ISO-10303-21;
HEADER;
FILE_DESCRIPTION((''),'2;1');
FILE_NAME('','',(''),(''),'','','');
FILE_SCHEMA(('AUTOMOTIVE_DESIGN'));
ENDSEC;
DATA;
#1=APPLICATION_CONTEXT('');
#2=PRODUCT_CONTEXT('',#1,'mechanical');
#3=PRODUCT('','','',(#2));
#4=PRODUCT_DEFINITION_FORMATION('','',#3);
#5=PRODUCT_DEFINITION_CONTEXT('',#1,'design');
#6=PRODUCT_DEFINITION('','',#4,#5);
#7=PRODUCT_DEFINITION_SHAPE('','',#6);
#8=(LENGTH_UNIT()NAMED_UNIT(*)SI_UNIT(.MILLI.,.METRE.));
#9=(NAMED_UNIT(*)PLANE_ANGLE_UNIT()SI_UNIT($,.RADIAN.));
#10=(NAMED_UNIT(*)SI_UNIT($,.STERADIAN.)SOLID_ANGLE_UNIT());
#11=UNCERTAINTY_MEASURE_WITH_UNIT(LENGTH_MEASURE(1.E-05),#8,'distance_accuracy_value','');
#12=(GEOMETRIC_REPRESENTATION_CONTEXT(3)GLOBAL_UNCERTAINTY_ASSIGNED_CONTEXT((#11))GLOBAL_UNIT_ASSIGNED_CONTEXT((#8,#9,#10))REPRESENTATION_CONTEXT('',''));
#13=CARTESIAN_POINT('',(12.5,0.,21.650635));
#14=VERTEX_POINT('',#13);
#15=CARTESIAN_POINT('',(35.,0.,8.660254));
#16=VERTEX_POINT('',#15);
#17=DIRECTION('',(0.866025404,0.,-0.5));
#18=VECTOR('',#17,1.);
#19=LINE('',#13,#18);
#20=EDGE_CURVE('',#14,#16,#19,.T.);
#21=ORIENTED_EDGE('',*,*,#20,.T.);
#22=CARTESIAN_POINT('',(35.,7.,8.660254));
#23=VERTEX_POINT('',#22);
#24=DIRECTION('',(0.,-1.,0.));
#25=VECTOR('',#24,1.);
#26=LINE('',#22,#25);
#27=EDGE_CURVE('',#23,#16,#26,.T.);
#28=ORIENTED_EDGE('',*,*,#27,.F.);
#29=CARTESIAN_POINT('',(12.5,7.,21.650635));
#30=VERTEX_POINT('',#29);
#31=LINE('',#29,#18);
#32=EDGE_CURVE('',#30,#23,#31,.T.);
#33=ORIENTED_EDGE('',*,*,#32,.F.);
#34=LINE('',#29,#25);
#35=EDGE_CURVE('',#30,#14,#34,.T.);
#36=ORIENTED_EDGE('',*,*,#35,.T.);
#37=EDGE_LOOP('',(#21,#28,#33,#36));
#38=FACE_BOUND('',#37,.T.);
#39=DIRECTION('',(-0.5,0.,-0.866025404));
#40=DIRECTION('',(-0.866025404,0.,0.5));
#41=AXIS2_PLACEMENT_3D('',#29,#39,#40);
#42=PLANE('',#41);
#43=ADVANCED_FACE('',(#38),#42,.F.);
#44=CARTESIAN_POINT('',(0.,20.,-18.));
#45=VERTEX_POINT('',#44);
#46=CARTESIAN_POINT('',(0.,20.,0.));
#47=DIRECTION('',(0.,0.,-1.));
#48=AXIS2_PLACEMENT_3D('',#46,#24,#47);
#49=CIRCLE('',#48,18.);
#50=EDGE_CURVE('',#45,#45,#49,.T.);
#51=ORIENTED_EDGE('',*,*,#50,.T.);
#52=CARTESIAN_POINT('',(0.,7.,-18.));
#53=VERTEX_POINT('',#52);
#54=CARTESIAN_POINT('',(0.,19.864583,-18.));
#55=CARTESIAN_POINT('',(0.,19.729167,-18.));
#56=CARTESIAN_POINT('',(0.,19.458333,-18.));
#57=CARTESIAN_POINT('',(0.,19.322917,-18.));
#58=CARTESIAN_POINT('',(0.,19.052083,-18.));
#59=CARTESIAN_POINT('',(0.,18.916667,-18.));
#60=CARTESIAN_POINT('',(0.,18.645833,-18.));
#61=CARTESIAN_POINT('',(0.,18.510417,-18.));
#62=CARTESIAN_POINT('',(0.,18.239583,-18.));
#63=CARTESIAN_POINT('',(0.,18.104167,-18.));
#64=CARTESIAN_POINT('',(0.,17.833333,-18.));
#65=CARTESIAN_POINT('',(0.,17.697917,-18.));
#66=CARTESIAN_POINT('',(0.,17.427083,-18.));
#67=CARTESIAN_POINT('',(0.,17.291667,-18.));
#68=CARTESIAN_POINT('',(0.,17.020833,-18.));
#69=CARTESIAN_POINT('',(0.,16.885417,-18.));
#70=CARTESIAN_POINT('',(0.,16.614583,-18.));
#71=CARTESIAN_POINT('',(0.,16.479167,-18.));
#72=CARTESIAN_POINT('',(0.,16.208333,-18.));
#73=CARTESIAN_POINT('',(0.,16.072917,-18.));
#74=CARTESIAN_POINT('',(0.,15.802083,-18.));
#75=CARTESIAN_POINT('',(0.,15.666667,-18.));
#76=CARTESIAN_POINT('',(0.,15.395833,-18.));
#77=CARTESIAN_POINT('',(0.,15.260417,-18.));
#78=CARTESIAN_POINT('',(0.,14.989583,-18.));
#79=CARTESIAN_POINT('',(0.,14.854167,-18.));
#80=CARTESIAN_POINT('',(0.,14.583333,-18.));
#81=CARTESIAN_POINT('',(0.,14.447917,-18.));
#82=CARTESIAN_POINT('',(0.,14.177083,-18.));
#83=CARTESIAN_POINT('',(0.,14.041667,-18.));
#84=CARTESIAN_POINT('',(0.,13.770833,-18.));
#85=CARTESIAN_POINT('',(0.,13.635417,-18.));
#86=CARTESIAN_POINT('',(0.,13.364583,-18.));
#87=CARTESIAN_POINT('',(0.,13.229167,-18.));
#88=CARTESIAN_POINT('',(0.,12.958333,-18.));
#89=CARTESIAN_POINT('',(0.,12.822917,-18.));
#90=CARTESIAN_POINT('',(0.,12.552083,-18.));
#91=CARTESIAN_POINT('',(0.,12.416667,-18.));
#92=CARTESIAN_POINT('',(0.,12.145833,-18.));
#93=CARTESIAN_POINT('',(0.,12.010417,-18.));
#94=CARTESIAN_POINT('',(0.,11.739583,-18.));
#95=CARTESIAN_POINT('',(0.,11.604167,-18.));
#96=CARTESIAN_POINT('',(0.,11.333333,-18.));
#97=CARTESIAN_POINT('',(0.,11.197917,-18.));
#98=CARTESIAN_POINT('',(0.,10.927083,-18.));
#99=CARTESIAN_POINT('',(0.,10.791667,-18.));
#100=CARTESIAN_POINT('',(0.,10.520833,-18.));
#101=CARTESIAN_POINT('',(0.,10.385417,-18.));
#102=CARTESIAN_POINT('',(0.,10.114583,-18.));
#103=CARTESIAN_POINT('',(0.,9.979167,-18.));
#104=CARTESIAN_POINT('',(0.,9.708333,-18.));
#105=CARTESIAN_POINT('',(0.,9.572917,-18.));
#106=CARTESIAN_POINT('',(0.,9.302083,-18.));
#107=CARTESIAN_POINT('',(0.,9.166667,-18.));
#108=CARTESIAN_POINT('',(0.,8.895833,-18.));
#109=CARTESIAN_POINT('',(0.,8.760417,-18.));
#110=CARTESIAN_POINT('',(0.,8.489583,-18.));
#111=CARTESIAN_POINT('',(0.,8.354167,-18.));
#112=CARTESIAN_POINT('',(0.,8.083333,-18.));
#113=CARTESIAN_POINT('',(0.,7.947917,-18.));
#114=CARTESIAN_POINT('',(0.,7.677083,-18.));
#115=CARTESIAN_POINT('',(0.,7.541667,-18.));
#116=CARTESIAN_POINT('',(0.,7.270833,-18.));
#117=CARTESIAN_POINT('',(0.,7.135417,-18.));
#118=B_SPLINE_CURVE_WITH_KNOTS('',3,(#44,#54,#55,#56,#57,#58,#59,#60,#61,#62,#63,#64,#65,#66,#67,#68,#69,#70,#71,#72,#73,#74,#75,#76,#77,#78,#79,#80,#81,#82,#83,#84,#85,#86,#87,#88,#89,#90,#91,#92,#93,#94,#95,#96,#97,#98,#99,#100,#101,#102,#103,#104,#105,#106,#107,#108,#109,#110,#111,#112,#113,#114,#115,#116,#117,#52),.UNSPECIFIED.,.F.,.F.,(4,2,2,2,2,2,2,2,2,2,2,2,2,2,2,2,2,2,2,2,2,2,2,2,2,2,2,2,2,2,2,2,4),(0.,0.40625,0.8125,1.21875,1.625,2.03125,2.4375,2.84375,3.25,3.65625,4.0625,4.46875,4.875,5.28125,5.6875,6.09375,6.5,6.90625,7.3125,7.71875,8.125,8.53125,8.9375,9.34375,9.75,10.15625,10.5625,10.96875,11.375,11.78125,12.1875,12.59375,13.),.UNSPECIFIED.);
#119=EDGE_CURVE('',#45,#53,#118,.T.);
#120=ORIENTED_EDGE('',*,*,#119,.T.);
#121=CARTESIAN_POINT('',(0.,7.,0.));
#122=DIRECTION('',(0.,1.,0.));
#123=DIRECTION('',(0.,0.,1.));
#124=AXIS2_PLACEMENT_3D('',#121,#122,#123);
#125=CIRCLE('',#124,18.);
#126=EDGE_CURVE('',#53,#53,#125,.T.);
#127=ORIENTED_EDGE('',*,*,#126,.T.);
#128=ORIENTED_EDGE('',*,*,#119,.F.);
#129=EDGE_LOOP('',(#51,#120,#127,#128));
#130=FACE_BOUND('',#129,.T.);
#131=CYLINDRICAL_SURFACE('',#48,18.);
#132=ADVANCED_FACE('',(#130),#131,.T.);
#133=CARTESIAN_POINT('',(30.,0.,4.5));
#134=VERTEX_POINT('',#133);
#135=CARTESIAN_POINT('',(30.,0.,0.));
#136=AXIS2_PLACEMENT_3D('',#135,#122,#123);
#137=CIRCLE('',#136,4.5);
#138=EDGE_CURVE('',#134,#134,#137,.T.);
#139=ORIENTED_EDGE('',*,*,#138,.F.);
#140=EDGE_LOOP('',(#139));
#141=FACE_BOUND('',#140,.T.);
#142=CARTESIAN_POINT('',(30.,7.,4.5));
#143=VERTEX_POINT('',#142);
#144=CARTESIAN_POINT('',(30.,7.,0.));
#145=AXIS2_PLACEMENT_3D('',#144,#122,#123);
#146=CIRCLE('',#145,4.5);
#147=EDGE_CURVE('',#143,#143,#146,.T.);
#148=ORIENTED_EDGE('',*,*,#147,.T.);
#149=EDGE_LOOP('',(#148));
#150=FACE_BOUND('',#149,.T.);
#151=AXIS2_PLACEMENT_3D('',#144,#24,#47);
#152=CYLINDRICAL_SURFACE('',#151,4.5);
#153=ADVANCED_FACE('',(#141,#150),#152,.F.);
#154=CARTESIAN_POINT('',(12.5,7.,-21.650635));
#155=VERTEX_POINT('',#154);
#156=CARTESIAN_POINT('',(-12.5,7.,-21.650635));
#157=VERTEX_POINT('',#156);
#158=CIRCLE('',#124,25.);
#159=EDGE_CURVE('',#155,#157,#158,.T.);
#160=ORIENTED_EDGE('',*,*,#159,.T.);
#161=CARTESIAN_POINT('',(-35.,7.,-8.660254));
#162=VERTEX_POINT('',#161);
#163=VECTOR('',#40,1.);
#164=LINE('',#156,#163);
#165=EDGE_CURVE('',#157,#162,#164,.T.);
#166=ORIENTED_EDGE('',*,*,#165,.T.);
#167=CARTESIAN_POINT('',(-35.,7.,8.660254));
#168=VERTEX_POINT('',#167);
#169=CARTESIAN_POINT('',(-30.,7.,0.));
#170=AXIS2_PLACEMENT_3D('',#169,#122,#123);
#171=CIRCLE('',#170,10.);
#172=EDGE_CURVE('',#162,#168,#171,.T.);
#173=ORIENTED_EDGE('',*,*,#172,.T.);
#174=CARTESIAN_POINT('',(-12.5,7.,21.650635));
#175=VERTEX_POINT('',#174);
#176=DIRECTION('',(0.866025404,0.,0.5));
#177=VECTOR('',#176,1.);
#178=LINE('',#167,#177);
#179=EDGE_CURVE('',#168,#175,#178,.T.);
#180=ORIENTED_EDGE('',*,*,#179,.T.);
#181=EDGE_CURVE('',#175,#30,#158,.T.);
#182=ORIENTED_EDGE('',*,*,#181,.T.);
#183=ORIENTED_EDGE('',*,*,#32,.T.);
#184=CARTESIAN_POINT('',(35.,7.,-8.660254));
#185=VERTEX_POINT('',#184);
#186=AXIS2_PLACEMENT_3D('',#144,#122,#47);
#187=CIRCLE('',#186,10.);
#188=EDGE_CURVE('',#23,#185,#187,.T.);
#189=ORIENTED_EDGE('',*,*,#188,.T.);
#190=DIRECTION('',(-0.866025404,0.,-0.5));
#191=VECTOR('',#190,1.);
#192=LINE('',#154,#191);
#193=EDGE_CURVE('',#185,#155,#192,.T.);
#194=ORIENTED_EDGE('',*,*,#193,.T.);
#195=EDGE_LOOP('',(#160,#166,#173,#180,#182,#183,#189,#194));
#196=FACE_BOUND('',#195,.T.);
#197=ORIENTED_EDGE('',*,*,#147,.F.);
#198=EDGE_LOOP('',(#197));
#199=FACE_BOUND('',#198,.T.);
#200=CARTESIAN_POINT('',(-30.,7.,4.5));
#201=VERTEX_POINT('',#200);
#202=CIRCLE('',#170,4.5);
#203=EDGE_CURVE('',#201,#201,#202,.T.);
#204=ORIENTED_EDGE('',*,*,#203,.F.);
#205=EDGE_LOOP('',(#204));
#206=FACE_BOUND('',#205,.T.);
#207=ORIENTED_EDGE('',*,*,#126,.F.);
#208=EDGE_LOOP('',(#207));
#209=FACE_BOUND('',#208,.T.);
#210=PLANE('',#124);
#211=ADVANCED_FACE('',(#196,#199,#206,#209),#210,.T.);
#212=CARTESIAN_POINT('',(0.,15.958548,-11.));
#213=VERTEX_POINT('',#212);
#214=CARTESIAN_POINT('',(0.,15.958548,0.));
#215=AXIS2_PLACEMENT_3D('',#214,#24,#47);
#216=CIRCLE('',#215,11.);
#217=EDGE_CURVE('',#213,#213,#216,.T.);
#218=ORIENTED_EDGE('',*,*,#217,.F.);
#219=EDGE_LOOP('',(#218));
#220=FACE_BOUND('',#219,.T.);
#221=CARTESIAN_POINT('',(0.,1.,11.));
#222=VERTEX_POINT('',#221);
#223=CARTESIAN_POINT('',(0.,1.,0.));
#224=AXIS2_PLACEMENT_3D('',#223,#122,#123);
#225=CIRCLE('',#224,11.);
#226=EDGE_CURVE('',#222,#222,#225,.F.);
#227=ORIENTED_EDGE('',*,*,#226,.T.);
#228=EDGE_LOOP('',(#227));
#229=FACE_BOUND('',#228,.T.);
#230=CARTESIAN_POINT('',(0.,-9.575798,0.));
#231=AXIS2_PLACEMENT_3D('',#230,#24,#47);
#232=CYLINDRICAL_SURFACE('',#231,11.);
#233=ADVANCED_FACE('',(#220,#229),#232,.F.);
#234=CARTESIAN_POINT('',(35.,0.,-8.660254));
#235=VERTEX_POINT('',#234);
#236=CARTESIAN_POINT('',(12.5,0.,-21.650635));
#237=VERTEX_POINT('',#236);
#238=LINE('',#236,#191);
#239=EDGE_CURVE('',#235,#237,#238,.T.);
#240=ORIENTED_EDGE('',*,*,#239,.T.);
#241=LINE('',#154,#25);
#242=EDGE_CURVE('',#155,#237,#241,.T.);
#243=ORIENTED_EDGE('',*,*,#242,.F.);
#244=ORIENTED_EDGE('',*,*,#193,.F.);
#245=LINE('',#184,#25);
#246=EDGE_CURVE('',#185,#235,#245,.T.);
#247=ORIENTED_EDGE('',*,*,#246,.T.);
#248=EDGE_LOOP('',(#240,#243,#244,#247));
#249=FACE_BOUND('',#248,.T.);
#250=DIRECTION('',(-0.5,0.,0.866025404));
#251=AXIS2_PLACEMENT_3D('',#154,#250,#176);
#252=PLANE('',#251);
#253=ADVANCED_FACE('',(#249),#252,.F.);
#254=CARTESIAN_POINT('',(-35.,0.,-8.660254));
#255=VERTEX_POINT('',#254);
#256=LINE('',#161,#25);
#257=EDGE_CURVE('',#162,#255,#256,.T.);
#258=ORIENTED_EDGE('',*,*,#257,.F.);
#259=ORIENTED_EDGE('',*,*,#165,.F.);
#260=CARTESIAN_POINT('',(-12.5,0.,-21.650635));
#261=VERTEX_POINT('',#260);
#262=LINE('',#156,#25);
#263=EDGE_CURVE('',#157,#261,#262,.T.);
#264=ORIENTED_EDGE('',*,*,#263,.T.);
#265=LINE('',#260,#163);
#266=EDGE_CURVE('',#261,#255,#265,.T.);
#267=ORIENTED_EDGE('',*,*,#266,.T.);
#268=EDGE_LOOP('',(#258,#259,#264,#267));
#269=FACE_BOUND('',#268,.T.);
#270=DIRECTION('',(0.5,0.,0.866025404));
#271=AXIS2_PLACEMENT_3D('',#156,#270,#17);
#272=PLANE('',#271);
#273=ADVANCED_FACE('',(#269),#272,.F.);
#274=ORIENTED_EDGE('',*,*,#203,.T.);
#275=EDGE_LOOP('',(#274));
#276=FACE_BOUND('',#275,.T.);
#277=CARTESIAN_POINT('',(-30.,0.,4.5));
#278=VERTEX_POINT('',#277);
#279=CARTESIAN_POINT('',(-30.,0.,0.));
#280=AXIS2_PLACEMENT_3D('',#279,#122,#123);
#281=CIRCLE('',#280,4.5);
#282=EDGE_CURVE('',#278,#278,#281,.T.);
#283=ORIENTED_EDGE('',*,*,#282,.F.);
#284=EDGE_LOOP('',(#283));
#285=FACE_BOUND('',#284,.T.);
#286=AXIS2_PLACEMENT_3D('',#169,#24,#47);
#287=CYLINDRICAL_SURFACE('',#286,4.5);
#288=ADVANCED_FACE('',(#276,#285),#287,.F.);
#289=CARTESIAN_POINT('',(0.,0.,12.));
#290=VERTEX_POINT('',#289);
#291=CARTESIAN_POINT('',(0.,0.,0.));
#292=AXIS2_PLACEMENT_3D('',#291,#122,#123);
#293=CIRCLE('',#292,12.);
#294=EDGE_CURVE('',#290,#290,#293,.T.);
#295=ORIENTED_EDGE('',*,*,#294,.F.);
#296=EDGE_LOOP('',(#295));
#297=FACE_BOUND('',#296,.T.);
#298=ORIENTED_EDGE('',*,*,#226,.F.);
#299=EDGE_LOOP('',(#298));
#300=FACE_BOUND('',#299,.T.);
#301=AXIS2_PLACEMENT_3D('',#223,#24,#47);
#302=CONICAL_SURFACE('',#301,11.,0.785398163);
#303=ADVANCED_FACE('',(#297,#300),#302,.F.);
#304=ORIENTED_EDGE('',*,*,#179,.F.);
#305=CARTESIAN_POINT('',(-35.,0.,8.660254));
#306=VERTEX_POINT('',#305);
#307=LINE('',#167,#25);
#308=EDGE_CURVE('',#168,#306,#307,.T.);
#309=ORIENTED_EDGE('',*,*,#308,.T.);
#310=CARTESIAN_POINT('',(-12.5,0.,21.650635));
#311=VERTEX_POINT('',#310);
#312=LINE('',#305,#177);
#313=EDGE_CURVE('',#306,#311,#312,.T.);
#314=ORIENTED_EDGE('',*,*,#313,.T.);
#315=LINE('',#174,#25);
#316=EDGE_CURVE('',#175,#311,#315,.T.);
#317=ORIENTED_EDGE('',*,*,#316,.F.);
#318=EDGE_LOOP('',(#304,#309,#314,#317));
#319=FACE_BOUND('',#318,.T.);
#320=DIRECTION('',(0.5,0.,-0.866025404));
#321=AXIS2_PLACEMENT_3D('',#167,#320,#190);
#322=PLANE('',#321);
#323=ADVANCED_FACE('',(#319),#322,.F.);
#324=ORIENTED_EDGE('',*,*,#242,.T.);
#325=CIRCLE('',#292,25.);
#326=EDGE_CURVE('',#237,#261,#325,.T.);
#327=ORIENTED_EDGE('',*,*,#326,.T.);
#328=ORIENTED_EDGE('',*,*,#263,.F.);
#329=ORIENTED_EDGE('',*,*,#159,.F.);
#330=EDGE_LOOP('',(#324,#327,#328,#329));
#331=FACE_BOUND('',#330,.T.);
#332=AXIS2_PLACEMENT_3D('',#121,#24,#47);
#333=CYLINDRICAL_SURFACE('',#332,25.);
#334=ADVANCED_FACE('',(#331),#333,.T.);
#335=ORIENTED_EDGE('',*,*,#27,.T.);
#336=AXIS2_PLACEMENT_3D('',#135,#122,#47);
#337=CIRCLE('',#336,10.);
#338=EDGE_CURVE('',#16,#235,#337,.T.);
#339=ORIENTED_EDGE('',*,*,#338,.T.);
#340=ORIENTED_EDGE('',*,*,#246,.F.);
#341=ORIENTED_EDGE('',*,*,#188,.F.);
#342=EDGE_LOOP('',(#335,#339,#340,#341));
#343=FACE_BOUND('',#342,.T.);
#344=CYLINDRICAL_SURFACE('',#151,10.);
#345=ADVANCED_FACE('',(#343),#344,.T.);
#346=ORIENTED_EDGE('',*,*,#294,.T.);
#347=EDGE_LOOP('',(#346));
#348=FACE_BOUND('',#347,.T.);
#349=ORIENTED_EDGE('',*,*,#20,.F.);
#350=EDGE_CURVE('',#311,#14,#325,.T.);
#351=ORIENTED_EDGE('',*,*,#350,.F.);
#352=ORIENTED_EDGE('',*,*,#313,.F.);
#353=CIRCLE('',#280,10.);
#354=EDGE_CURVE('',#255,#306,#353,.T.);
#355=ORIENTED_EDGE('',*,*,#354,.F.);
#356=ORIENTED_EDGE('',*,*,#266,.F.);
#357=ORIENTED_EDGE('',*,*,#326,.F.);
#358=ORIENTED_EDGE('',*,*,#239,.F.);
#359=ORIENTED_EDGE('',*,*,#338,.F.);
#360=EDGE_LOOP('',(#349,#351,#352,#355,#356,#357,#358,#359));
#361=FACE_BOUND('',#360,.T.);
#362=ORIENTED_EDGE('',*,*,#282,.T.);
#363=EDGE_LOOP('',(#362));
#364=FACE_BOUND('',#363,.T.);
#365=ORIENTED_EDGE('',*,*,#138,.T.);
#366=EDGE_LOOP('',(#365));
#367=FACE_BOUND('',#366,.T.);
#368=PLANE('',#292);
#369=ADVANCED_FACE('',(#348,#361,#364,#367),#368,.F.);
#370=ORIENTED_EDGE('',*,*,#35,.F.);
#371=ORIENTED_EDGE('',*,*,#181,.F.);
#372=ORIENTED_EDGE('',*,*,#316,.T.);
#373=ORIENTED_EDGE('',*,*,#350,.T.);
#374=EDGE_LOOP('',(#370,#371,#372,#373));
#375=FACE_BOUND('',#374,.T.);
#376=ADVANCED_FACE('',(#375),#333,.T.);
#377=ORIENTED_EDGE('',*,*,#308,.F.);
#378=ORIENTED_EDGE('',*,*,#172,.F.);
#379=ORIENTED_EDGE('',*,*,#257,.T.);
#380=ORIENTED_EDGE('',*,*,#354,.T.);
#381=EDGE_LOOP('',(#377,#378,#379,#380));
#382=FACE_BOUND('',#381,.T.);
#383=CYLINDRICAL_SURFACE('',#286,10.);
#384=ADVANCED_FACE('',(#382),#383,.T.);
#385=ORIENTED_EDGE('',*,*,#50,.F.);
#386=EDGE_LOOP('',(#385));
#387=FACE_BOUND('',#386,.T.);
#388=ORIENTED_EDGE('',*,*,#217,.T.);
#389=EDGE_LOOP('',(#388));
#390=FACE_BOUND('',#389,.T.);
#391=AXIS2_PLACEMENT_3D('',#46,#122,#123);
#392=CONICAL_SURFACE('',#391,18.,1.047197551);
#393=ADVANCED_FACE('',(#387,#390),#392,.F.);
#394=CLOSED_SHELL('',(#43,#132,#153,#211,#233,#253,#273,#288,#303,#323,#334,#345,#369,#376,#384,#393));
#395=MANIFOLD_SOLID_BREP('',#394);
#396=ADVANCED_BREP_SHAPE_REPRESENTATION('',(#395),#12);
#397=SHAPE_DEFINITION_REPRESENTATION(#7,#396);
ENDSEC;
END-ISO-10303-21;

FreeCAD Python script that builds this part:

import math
import FreeCAD as App
import Part
import Sketcher
from FreeCAD import Vector
Q = App.Units.Quantity


def edges_at(feature, points):
    """Names of the edges that pass closest to the given points."""
    edges = feature.Shape.Edges
    near = lambda p: min(range(len(edges)), key=lambda i: edges[i].distToShape(Part.Vertex(*p))[0])
    return sorted({f"Edge{near(p) + 1}" for p in points})

doc = App.newDocument("Part")
body = doc.addObject("PartDesign::Body", "Body")

# Sketch on XZ plane
sketch1 = doc.addObject("Sketcher::SketchObject", "Sketch")
body.addObject(sketch1)
sketch1.AttachmentSupport = (doc.XZ_Plane, [""])
sketch1.MapMode = "FlatFace"
sketch1.addGeometry([
    Part.LineSegment(Vector(-12.5, -21.650635, 0), Vector(-35, -8.660254, 0)),  # 0
    Part.ArcOfCircle(Part.Circle(Vector(-30, 0, 0), Vector(0, 0, 1), 10), math.radians(120), math.radians(240)),  # 1
    Part.LineSegment(Vector(-35, 8.660254, 0), Vector(-12.5, 21.650635, 0)),  # 2
    Part.ArcOfCircle(Part.Circle(Vector(0, 0, 0), Vector(0, 0, 1), 25), math.radians(60), math.radians(120)),  # 3
    Part.LineSegment(Vector(12.5, 21.650635, 0), Vector(35, 8.660254, 0)),  # 4
    Part.ArcOfCircle(Part.Circle(Vector(30, 0, 0), Vector(0, 0, 1), 10), math.radians(-60), math.radians(60)),  # 5
    Part.LineSegment(Vector(35, -8.660254, 0), Vector(12.5, -21.650635, 0)),  # 6
    Part.ArcOfCircle(Part.Circle(Vector(0, 0, 0), Vector(0, 0, 1), 25), math.radians(-120), math.radians(-60)),  # 7
    Part.Circle(Vector(-30, 0, 0), Vector(0, 0, 1), 4.5),  # 8
    Part.Circle(Vector(30, 0, 0), Vector(0, 0, 1), 4.5),  # 9
], False)
sketch1.addConstraint([
    Sketcher.Constraint("Tangent", 0, 2, 1, 2),
    Sketcher.Constraint("Tangent", 1, 1, 2, 1),
    Sketcher.Constraint("Tangent", 2, 2, 3, 2),
    Sketcher.Constraint("Tangent", 3, 1, 4, 1),
    Sketcher.Constraint("Tangent", 4, 2, 5, 2),
    Sketcher.Constraint("Tangent", 5, 1, 6, 1),
    Sketcher.Constraint("Tangent", 6, 2, 7, 2),
    Sketcher.Constraint("Tangent", 7, 1, 0, 1),
    Sketcher.Constraint("Coincident", 3, 3, -1, 1),
    Sketcher.Constraint("Coincident", 7, 3, -1, 1),
    Sketcher.Constraint("Coincident", 8, 3, 1, 3),
    Sketcher.Constraint("Coincident", 9, 3, 5, 3),
    Sketcher.Constraint("Equal", 1, 5),
    Sketcher.Constraint("Equal", 3, 7),
    Sketcher.Constraint("Equal", 8, 9),
    Sketcher.Constraint("Symmetric", 1, 3, 5, 3, -1, 1),
    Sketcher.Constraint("PointOnObject", 1, 3, -1),
    Sketcher.Constraint("Diameter", 8, Q("9 mm")),
    Sketcher.Constraint("Radius", 1, Q("10 mm")),
    Sketcher.Constraint("Radius", 3, Q("25 mm")),
    Sketcher.Constraint("Angle", 0, Q("150 deg")),
])
pad1 = doc.addObject("PartDesign::Pad", "Pad")
body.addObject(pad1)
pad1.Profile = sketch1
pad1.Length = 7
pad1.Reversed = True

# Sketch on XZ plane
sketch2 = doc.addObject("Sketcher::SketchObject", "Sketch001")
body.addObject(sketch2)
sketch2.AttachmentSupport = (doc.XZ_Plane, [""])
sketch2.MapMode = "FlatFace"
sketch2.AttachmentOffset = App.Placement(Vector(0, 0, -7), App.Rotation())
sketch2.addGeometry(Part.Circle(Vector(0, 0, 0), Vector(0, 0, 1), 18), False)
sketch2.addConstraint([
    Sketcher.Constraint("Coincident", 0, 3, -1, 1),
    Sketcher.Constraint("Diameter", 0, Q("36 mm")),
])
pad2 = doc.addObject("PartDesign::Pad", "Pad001")
body.addObject(pad2)
pad2.Profile = sketch2
pad2.Length = 13
pad2.Reversed = True

# Sketch on XY plane
sketch3 = doc.addObject("Sketcher::SketchObject", "Sketch002")
body.addObject(sketch3)
sketch3.AttachmentSupport = (doc.XY_Plane, [""])
sketch3.MapMode = "FlatFace"
sketch3.addGeometry([
    Part.LineSegment(Vector(11, 0, 0), Vector(0, 0, 0)),  # 0
    Part.LineSegment(Vector(0, 0, 0), Vector(0, 20, 0)),  # 1
    Part.LineSegment(Vector(0, 20, 0), Vector(18, 20, 0)),  # 2
    Part.LineSegment(Vector(18, 20, 0), Vector(11, 15.958548, 0)),  # 3
    Part.LineSegment(Vector(11, 15.958548, 0), Vector(11, 0, 0)),  # 4
], False)
sketch3.addConstraint([
    Sketcher.Constraint("Coincident", 0, 2, 1, 1),
    Sketcher.Constraint("Coincident", 1, 2, 2, 1),
    Sketcher.Constraint("Coincident", 2, 2, 3, 1),
    Sketcher.Constraint("Coincident", 3, 2, 4, 1),
    Sketcher.Constraint("Coincident", 4, 2, 0, 1),
    Sketcher.Constraint("Horizontal", 0),
    Sketcher.Constraint("Vertical", 1),
    Sketcher.Constraint("Horizontal", 2),
    Sketcher.Constraint("Vertical", 4),
    Sketcher.Constraint("Coincident", 0, 2, -1, 1),
    Sketcher.Constraint("DistanceX", 0, 2, 0, 1, Q("11 mm")),
    Sketcher.Constraint("DistanceX", 2, 1, 2, 2, Q("18 mm")),
    Sketcher.Constraint("DistanceY", 1, 1, 1, 2, Q("20 mm")),
    Sketcher.Constraint("Angle", 3, Q("-150 deg")),
])
groove = doc.addObject("PartDesign::Groove", "Groove")
body.addObject(groove)
groove.Profile = sketch3
groove.ReferenceAxis = (sketch3, ["V_Axis"])
groove.Angle = 360
doc.recompute()

chamfer = doc.addObject("PartDesign::Chamfer", "Chamfer")
body.addObject(chamfer)
chamfer.Base = (groove, edges_at(groove, [(0, 0, 11)]))
chamfer.Size = 1

doc.recompute()
